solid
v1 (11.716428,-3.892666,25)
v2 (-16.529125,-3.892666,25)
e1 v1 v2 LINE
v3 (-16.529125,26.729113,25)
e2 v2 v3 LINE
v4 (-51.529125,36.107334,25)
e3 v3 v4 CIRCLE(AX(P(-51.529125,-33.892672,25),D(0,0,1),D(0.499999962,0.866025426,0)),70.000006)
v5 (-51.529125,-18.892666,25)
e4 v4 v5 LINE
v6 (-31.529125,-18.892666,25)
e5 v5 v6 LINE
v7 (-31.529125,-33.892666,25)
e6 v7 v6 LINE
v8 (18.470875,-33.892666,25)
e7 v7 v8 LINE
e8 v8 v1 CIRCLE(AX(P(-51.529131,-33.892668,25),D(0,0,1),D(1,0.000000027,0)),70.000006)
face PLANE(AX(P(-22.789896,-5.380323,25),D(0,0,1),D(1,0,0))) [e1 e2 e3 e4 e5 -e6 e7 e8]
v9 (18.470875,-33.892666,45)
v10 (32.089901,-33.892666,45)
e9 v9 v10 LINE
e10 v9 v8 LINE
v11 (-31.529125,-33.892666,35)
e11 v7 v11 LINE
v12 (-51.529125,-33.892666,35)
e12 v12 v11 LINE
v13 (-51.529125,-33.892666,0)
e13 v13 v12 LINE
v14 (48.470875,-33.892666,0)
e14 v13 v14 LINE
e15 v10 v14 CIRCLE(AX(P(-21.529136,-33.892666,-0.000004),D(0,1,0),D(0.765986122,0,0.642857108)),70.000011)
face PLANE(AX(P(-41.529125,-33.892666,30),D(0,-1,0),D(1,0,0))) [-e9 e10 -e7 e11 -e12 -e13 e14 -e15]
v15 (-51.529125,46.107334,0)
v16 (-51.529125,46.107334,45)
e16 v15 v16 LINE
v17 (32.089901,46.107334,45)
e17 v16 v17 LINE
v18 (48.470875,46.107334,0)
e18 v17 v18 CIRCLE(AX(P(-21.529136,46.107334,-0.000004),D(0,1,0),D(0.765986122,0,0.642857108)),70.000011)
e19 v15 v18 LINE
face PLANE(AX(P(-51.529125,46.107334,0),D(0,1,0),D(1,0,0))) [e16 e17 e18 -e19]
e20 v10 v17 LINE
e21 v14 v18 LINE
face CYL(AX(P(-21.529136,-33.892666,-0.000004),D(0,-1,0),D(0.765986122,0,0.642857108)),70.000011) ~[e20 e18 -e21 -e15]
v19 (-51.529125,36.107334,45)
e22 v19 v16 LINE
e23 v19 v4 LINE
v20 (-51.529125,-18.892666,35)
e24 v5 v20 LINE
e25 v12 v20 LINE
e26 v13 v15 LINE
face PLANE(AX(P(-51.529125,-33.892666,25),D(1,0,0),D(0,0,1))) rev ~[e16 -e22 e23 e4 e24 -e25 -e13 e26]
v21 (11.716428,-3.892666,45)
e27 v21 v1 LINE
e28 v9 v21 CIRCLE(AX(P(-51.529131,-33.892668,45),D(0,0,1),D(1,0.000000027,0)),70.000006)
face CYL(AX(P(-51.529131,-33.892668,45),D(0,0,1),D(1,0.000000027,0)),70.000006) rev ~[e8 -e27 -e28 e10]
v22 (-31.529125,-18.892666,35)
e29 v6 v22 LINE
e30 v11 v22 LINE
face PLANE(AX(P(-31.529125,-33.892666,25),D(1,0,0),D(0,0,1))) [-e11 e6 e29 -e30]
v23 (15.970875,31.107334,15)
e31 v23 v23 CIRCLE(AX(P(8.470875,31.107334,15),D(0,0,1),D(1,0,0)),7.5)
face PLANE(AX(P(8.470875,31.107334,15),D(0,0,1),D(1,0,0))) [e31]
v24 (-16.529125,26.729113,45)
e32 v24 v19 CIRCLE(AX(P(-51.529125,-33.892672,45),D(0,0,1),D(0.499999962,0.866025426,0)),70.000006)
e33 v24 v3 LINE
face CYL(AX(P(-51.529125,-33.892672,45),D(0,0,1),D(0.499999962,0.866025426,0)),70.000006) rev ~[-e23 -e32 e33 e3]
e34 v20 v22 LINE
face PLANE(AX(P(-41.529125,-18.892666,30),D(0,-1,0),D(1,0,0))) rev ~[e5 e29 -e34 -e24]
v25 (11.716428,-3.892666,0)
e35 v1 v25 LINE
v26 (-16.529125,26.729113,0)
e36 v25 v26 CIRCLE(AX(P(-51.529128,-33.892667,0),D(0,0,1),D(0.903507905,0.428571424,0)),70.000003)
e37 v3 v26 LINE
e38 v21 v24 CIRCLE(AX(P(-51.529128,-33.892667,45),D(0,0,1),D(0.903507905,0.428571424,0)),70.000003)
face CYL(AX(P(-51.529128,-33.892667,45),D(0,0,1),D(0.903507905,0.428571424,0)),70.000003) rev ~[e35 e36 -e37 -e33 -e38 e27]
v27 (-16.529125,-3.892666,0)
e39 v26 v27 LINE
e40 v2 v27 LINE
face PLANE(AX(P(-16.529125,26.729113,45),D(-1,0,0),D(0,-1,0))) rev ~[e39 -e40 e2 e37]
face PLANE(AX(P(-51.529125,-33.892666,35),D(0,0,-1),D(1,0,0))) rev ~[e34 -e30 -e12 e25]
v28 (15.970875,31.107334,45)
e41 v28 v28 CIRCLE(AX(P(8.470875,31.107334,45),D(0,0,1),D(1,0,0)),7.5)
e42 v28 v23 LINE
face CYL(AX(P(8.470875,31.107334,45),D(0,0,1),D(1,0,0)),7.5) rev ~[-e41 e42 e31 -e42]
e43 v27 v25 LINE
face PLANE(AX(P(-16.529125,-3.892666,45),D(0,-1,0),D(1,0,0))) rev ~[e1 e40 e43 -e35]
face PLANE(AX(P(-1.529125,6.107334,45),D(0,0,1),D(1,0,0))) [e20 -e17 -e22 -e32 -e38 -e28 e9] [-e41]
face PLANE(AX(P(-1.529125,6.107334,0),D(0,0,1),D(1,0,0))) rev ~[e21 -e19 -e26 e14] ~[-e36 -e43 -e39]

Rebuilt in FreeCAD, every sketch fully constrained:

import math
import FreeCAD as App
import Part
import Sketcher
Q = App.Units.Quantity

doc = App.newDocument("Part")
params = doc.addObject("Spreadsheet::Sheet", "Params")
for row, (alias, value) in enumerate([
    ("sketch1_width", "100 mm"),
    ("sketch1_height", "80 mm"),
    ("pad1_length", "45 mm"),
    ("pocket1_length", "45 mm"),
    ("sketch3_diameter", "15 mm"),
    ("pocket2_length", "30 mm"),
    ("sketch4_width", "70 mm"),
    ("pocket3_length", "20 mm"),
    ("sketch5_width", "20 mm"),
    ("sketch5_height", "10 mm"),
    ("pad2_length", "15 mm"),
    ("sketch6_height", "45 mm"),
], start=1):
    params.set(f"A{row}", alias)
    params.set(f"B{row}", "=" + value)
    params.setAlias(f"B{row}", alias)

body = doc.addObject("PartDesign::Body", "Body")

# Sketch on XY plane
sketch1 = body.newObject("Sketcher::SketchObject", "Sketch")
sketch1.AttachmentSupport = (doc.getObject("XY_Plane"), [""])
sketch1.MapMode = "FlatFace"
sketch1.addGeometry(Part.LineSegment(App.Vector(-52, 46, 0), App.Vector(-52, -34, 0)), False)
sketch1.addGeometry(Part.LineSegment(App.Vector(-52, -34, 0), App.Vector(48, -34, 0)), False)
sketch1.addGeometry(Part.LineSegment(App.Vector(48, -34, 0), App.Vector(48, 46, 0)), False)
sketch1.addGeometry(Part.LineSegment(App.Vector(48, 46, 0), App.Vector(-52, 46, 0)), False)
sketch1.addConstraint(Sketcher.Constraint("Coincident", 0, 2, 1, 1))
sketch1.addConstraint(Sketcher.Constraint("Coincident", 1, 2, 2, 1))
sketch1.addConstraint(Sketcher.Constraint("Coincident", 2, 2, 3, 1))
sketch1.addConstraint(Sketcher.Constraint("Coincident", 3, 2, 0, 1))
sketch1.addConstraint(Sketcher.Constraint("Vertical", 0))
sketch1.addConstraint(Sketcher.Constraint("Horizontal", 1))
sketch1.addConstraint(Sketcher.Constraint("Vertical", 2))
sketch1.addConstraint(Sketcher.Constraint("Horizontal", 3))
sketch1.addConstraint(Sketcher.Constraint("DistanceX", 1, 1, 1, 2, Q("100 mm")))
sketch1.addConstraint(Sketcher.Constraint("DistanceY", 0, 2, 0, 1, Q("80 mm")))
sketch1.addConstraint(Sketcher.Constraint("DistanceX", 0, 2, -1, 1, Q("51.529125 mm")))
sketch1.addConstraint(Sketcher.Constraint("DistanceY", 0, 2, -1, 1, Q("33.892666 mm")))
sketch1.setExpression("Constraints[8]", "Params.sketch1_width")
sketch1.setExpression("Constraints[9]", "Params.sketch1_height")
pad1 = body.newObject("PartDesign::Pad", "Pad")
pad1.Profile = sketch1
pad1.setExpression("Length", "Params.pad1_length")

# Sketch on XY plane
sketch2 = body.newObject("Sketcher::SketchObject", "Sketch001")
sketch2.AttachmentSupport = (doc.getObject("XY_Plane"), [""])
sketch2.MapMode = "FlatFace"
sketch2.AttachmentOffset = App.Placement(App.Vector(0, 0, 45), App.Rotation())
sketch2.addGeometry(Part.ArcOfCircle(Part.Circle(App.Vector(-52, -34, 0), App.Vector(0, 0, 1), 70), math.radians(25), math.radians(60)), False)
sketch2.addGeometry(Part.LineSegment(App.Vector(-17, 27, 0), App.Vector(-17, -4, 0)), False)
sketch2.addGeometry(Part.LineSegment(App.Vector(-17, -4, 0), App.Vector(12, -4, 0)), False)
sketch2.addConstraint(Sketcher.Constraint("Coincident", 0, 2, 1, 1))
sketch2.addConstraint(Sketcher.Constraint("Coincident", 1, 2, 2, 1))
sketch2.addConstraint(Sketcher.Constraint("Coincident", 2, 2, 0, 1))
sketch2.addConstraint(Sketcher.Constraint("Vertical", 1))
sketch2.addConstraint(Sketcher.Constraint("Horizontal", 2))
sketch2.addConstraint(Sketcher.Constraint("DistanceY", 0, 3, 1, 2, Q("30.000001 mm")))
sketch2.addConstraint(Sketcher.Constraint("Radius", 0, Q("70.000003 mm")))
sketch2.addConstraint(Sketcher.Constraint("DistanceY", 1, 2, 1, 1, Q("30.621779 mm")))
sketch2.addConstraint(Sketcher.Constraint("DistanceX", 0, 3, -1, 1, Q("51.529128 mm")))
sketch2.addConstraint(Sketcher.Constraint("DistanceY", 0, 3, -1, 1, Q("33.892667 mm")))
pocket1 = body.newObject("PartDesign::Pocket", "Pocket")
pocket1.Profile = sketch2
pocket1.setExpression("Length", "Params.pocket1_length")

# Sketch on XY plane
sketch3 = body.newObject("Sketcher::SketchObject", "Sketch002")
sketch3.AttachmentSupport = (doc.getObject("XY_Plane"), [""])
sketch3.MapMode = "FlatFace"
sketch3.AttachmentOffset = App.Placement(App.Vector(0, 0, 45), App.Rotation())
sketch3.addGeometry(Part.Circle(App.Vector(8, 31, 0), App.Vector(0, 0, 1), 8), False)
sketch3.addConstraint(Sketcher.Constraint("Diameter", 0, Q("15 mm")))
sketch3.addConstraint(Sketcher.Constraint("DistanceX", -1, 1, 0, 3, Q("8.470875 mm")))
sketch3.addConstraint(Sketcher.Constraint("DistanceY", -1, 1, 0, 3, Q("31.107334 mm")))
sketch3.setExpression("Constraints[0]", "Params.sketch3_diameter")
pocket2 = body.newObject("PartDesign::Pocket", "Pocket001")
pocket2.Profile = sketch3
pocket2.setExpression("Length", "Params.pocket2_length")

# Sketch on XY plane
sketch4 = body.newObject("Sketcher::SketchObject", "Sketch003")
sketch4.AttachmentSupport = (doc.getObject("XY_Plane"), [""])
sketch4.MapMode = "FlatFace"
sketch4.AttachmentOffset = App.Placement(App.Vector(0, 0, 45), App.Rotation())
sketch4.addGeometry(Part.LineSegment(App.Vector(-17, -4, 0), App.Vector(-17, 27, 0)), False)
sketch4.addGeometry(Part.ArcOfCircle(Part.Circle(App.Vector(-52, -34, 0), App.Vector(0, 0, 1), 70), math.radians(60), math.radians(90)), False)
sketch4.addGeometry(Part.LineSegment(App.Vector(-52, 36, 0), App.Vector(-52, -34, 0)), False)
sketch4.addGeometry(Part.LineSegment(App.Vector(-52, -34, 0), App.Vector(18, -34, 0)), False)
sketch4.addGeometry(Part.ArcOfCircle(Part.Circle(App.Vector(-52, -34, 0), App.Vector(0, 0, 1), 70), math.radians(0), math.radians(25)), False)
sketch4.addGeometry(Part.LineSegment(App.Vector(12, -4, 0), App.Vector(-17, -4, 0)), False)
sketch4.addConstraint(Sketcher.Constraint("Coincident", 0, 2, 1, 1))
sketch4.addConstraint(Sketcher.Constraint("Coincident", 1, 2, 2, 1))
sketch4.addConstraint(Sketcher.Constraint("Coincident", 2, 2, 3, 1))
sketch4.addConstraint(Sketcher.Constraint("Coincident", 3, 2, 4, 1))
sketch4.addConstraint(Sketcher.Constraint("Coincident", 4, 2, 5, 1))
sketch4.addConstraint(Sketcher.Constraint("Coincident", 5, 2, 0, 1))
sketch4.addConstraint(Sketcher.Constraint("Vertical", 0))
sketch4.addConstraint(Sketcher.Constraint("Vertical", 2))
sketch4.addConstraint(Sketcher.Constraint("Horizontal", 3))
sketch4.addConstraint(Sketcher.Constraint("Horizontal", 5))
sketch4.addConstraint(Sketcher.Constraint("Coincident", 4, 3, 1, 3))
sketch4.addConstraint(Sketcher.Constraint("Coincident", 2, 2, 1, 3))
sketch4.addConstraint(Sketcher.Constraint("Equal", 1, 4))
sketch4.addConstraint(Sketcher.Constraint("DistanceX", 3, 1, 3, 2, Q("70 mm")))
sketch4.addConstraint(Sketcher.Constraint("DistanceX", 1, 3, 0, 2, Q("35 mm")))
sketch4.addConstraint(Sketcher.Constraint("DistanceY", 3, 2, 4, 2, Q("30 mm")))
sketch4.addConstraint(Sketcher.Constraint("DistanceX", 4, 3, -1, 1, Q("51.529131 mm")))
sketch4.addConstraint(Sketcher.Constraint("DistanceY", 1, 3, -1, 1, Q("33.892672 mm")))
sketch4.setExpression("Constraints[13]", "Params.sketch4_width")
pocket3 = body.newObject("PartDesign::Pocket", "Pocket002")
pocket3.Profile = sketch4
pocket3.setExpression("Length", "Params.pocket3_length")

# Sketch on XZ plane
sketch5 = body.newObject("Sketcher::SketchObject", "Sketch004")
sketch5.AttachmentSupport = (doc.getObject("XZ_Plane"), [""])
sketch5.MapMode = "FlatFace"
sketch5.AttachmentOffset = App.Placement(App.Vector(0, 0, 33.892666), App.Rotation())
sketch5.addGeometry(Part.LineSegment(App.Vector(-52, 35, 0), App.Vector(-52, 25, 0)), False)
sketch5.addGeometry(Part.LineSegment(App.Vector(-52, 25, 0), App.Vector(-32, 25, 0)), False)
sketch5.addGeometry(Part.LineSegment(App.Vector(-32, 25, 0), App.Vector(-32, 35, 0)), False)
sketch5.addGeometry(Part.LineSegment(App.Vector(-32, 35, 0), App.Vector(-52, 35, 0)), False)
sketch5.addConstraint(Sketcher.Constraint("Coincident", 0, 2, 1, 1))
sketch5.addConstraint(Sketcher.Constraint("Coincident", 1, 2, 2, 1))
sketch5.addConstraint(Sketcher.Constraint("Coincident", 2, 2, 3, 1))
sketch5.addConstraint(Sketcher.Constraint("Coincident", 3, 2, 0, 1))
sketch5.addConstraint(Sketcher.Constraint("Vertical", 0))
sketch5.addConstraint(Sketcher.Constraint("Horizontal", 1))
sketch5.addConstraint(Sketcher.Constraint("Vertical", 2))
sketch5.addConstraint(Sketcher.Constraint("Horizontal", 3))
sketch5.addConstraint(Sketcher.Constraint("DistanceX", 1, 1, 1, 2, Q("20 mm")))
sketch5.addConstraint(Sketcher.Constraint("DistanceY", 0, 2, 0, 1, Q("10 mm")))
sketch5.addConstraint(Sketcher.Constraint("DistanceY", -1, 1, 0, 2, Q("25 mm")))
sketch5.addConstraint(Sketcher.Constraint("DistanceX", 0, 2, -1, 1, Q("51.529125 mm")))
sketch5.setExpression("Constraints[8]", "Params.sketch5_width")
sketch5.setExpression("Constraints[9]", "Params.sketch5_height")
pad2 = body.newObject("PartDesign::Pad", "Pad001")
pad2.Profile = sketch5
pad2.setExpression("Length", "Params.pad2_length")
pad2.Reversed = True

# Sketch on XZ plane
sketch6 = body.newObject("Sketcher::SketchObject", "Sketch005")
sketch6.AttachmentSupport = (doc.getObject("XZ_Plane"), [""])
sketch6.MapMode = "FlatFace"
sketch6.AttachmentOffset = App.Placement(App.Vector(0, 0, 33.892666), App.Rotation())
sketch6.addGeometry(Part.ArcOfCircle(Part.Circle(App.Vector(-22, 0, 0), App.Vector(0, 0, 1), 70), math.radians(0), math.radians(40)), False)
sketch6.addGeometry(Part.LineSegment(App.Vector(48, 0, 0), App.Vector(48, 45, 0)), False)
sketch6.addGeometry(Part.LineSegment(App.Vector(48, 45, 0), App.Vector(32, 45, 0)), False)
sketch6.addConstraint(Sketcher.Constraint("Tangent", 0, 1, 1, 1))
sketch6.addConstraint(Sketcher.Constraint("Coincident", 1, 2, 2, 1))
sketch6.addConstraint(Sketcher.Constraint("Coincident", 2, 2, 0, 2))
sketch6.addConstraint(Sketcher.Constraint("Vertical", 1))
sketch6.addConstraint(Sketcher.Constraint("Horizontal", 2))
sketch6.addConstraint(Sketcher.Constraint("PointOnObject", 0, 1, -1))
sketch6.addConstraint(Sketcher.Constraint("DistanceY", 1, 1, 1, 2, Q("45 mm")))
sketch6.addConstraint(Sketcher.Constraint("Radius", 0, Q("70.000011 mm")))
sketch6.addConstraint(Sketcher.Constraint("DistanceX", -1, 1, 2, 2, Q("32.089901 mm")))
sketch6.setExpression("Constraints[6]", "Params.sketch6_height")
pocket4 = body.newObject("PartDesign::Pocket", "Pocket003")
pocket4.Profile = sketch6
pocket4.Type = "ThroughAll"

doc.recompute()
